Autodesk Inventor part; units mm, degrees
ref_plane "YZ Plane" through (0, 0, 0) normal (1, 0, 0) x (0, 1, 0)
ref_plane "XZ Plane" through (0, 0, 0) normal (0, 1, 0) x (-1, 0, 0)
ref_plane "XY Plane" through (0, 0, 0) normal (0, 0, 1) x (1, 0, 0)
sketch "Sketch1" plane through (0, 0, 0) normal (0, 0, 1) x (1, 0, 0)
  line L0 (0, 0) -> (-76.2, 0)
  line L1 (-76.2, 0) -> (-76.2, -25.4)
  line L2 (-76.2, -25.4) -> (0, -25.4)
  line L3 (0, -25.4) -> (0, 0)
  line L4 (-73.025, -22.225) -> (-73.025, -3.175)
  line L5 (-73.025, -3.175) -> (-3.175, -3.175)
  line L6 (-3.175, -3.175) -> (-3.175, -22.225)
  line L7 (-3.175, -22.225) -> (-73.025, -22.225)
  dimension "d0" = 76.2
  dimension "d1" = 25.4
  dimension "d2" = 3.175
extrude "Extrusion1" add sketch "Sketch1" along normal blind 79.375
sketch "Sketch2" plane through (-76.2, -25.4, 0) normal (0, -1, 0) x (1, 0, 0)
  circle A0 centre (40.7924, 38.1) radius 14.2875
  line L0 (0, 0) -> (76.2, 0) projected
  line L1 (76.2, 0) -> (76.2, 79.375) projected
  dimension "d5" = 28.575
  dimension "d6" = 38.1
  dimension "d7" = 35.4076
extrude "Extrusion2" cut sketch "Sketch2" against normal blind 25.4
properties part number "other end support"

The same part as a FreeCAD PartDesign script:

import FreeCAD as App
import Part
import Sketcher
from FreeCAD import Vector
Q = App.Units.Quantity

doc = App.newDocument("Part")
body = doc.addObject("PartDesign::Body", "Body")

# Sketch on XY plane
sketch1 = body.newObject("Sketcher::SketchObject", "Sketch")
sketch1.AttachmentSupport = (doc.getObject("XY_Plane"), [""])
sketch1.MapMode = "FlatFace"
sketch1.addGeometry([
    Part.LineSegment(Vector(0, -25, 0), Vector(0, 0, 0)),  # 0
    Part.LineSegment(Vector(0, 0, 0), Vector(-76, 0, 0)),  # 1
    Part.LineSegment(Vector(-76, 0, 0), Vector(-76, -25, 0)),  # 2
    Part.LineSegment(Vector(-76, -25, 0), Vector(0, -25, 0)),  # 3
    Part.LineSegment(Vector(-3, -22, 0), Vector(-73, -22, 0)),  # 4
    Part.LineSegment(Vector(-73, -22, 0), Vector(-73, -3, 0)),  # 5
    Part.LineSegment(Vector(-73, -3, 0), Vector(-3, -3, 0)),  # 6
    Part.LineSegment(Vector(-3, -3, 0), Vector(-3, -22, 0)),  # 7
], False)
sketch1.addConstraint([
    Sketcher.Constraint("Coincident", 0, 2, 1, 1),
    Sketcher.Constraint("Coincident", 1, 2, 2, 1),
    Sketcher.Constraint("Coincident", 2, 2, 3, 1),
    Sketcher.Constraint("Coincident", 3, 2, 0, 1),
    Sketcher.Constraint("Coincident", 4, 2, 5, 1),
    Sketcher.Constraint("Coincident", 5, 2, 6, 1),
    Sketcher.Constraint("Coincident", 6, 2, 7, 1),
    Sketcher.Constraint("Coincident", 7, 2, 4, 1),
    Sketcher.Constraint("Vertical", 0),
    Sketcher.Constraint("Horizontal", 1),
    Sketcher.Constraint("Vertical", 2),
    Sketcher.Constraint("Horizontal", 3),
    Sketcher.Constraint("Horizontal", 4),
    Sketcher.Constraint("Vertical", 5),
    Sketcher.Constraint("Horizontal", 6),
    Sketcher.Constraint("Vertical", 7),
    Sketcher.Constraint("Coincident", 0, 2, -1, 1),
    Sketcher.Constraint("DistanceX", 1, 2, 1, 1, Q("3 in")),
    Sketcher.Constraint("DistanceY", 0, 1, 0, 2, Q("1 in")),
    Sketcher.Constraint("DistanceY", 5, 2, -1, 1, Q("0.125 in")),
    Sketcher.Constraint("DistanceX", 6, 2, -1, 1, Q("0.125 in")),
    Sketcher.Constraint("DistanceX", 2, 2, 4, 2, Q("0.125 in")),
    Sketcher.Constraint("DistanceY", 2, 2, 4, 2, Q("0.125 in")),
])
pad1 = body.newObject("PartDesign::Pad", "Pad")
pad1.Profile = sketch1
pad1.Length = Q("3.125 in")

# Sketch on XZ plane
sketch2 = body.newObject("Sketcher::SketchObject", "Sketch001")
sketch2.AttachmentSupport = (doc.getObject("XZ_Plane"), [""])
sketch2.MapMode = "FlatFace"
sketch2.AttachmentOffset = App.Placement(Vector(0, 0, 1 * 25.4), App.Rotation())
sketch2.addGeometry(Part.Circle(Vector(-35, 38, 0), Vector(0, 0, 1), 14), False)
sketch2.addConstraint([
    Sketcher.Constraint("Diameter", 0, Q("1.125 in")),
    Sketcher.Constraint("DistanceY", -1, 1, 0, 3, Q("1.5 in")),
    Sketcher.Constraint("DistanceX", 0, 3, -1, 1, Q("1.394 in")),
])
pocket1 = body.newObject("PartDesign::Pocket", "Pocket")
pocket1.Profile = sketch2
pocket1.Length = Q("1 in")

doc.recompute()
